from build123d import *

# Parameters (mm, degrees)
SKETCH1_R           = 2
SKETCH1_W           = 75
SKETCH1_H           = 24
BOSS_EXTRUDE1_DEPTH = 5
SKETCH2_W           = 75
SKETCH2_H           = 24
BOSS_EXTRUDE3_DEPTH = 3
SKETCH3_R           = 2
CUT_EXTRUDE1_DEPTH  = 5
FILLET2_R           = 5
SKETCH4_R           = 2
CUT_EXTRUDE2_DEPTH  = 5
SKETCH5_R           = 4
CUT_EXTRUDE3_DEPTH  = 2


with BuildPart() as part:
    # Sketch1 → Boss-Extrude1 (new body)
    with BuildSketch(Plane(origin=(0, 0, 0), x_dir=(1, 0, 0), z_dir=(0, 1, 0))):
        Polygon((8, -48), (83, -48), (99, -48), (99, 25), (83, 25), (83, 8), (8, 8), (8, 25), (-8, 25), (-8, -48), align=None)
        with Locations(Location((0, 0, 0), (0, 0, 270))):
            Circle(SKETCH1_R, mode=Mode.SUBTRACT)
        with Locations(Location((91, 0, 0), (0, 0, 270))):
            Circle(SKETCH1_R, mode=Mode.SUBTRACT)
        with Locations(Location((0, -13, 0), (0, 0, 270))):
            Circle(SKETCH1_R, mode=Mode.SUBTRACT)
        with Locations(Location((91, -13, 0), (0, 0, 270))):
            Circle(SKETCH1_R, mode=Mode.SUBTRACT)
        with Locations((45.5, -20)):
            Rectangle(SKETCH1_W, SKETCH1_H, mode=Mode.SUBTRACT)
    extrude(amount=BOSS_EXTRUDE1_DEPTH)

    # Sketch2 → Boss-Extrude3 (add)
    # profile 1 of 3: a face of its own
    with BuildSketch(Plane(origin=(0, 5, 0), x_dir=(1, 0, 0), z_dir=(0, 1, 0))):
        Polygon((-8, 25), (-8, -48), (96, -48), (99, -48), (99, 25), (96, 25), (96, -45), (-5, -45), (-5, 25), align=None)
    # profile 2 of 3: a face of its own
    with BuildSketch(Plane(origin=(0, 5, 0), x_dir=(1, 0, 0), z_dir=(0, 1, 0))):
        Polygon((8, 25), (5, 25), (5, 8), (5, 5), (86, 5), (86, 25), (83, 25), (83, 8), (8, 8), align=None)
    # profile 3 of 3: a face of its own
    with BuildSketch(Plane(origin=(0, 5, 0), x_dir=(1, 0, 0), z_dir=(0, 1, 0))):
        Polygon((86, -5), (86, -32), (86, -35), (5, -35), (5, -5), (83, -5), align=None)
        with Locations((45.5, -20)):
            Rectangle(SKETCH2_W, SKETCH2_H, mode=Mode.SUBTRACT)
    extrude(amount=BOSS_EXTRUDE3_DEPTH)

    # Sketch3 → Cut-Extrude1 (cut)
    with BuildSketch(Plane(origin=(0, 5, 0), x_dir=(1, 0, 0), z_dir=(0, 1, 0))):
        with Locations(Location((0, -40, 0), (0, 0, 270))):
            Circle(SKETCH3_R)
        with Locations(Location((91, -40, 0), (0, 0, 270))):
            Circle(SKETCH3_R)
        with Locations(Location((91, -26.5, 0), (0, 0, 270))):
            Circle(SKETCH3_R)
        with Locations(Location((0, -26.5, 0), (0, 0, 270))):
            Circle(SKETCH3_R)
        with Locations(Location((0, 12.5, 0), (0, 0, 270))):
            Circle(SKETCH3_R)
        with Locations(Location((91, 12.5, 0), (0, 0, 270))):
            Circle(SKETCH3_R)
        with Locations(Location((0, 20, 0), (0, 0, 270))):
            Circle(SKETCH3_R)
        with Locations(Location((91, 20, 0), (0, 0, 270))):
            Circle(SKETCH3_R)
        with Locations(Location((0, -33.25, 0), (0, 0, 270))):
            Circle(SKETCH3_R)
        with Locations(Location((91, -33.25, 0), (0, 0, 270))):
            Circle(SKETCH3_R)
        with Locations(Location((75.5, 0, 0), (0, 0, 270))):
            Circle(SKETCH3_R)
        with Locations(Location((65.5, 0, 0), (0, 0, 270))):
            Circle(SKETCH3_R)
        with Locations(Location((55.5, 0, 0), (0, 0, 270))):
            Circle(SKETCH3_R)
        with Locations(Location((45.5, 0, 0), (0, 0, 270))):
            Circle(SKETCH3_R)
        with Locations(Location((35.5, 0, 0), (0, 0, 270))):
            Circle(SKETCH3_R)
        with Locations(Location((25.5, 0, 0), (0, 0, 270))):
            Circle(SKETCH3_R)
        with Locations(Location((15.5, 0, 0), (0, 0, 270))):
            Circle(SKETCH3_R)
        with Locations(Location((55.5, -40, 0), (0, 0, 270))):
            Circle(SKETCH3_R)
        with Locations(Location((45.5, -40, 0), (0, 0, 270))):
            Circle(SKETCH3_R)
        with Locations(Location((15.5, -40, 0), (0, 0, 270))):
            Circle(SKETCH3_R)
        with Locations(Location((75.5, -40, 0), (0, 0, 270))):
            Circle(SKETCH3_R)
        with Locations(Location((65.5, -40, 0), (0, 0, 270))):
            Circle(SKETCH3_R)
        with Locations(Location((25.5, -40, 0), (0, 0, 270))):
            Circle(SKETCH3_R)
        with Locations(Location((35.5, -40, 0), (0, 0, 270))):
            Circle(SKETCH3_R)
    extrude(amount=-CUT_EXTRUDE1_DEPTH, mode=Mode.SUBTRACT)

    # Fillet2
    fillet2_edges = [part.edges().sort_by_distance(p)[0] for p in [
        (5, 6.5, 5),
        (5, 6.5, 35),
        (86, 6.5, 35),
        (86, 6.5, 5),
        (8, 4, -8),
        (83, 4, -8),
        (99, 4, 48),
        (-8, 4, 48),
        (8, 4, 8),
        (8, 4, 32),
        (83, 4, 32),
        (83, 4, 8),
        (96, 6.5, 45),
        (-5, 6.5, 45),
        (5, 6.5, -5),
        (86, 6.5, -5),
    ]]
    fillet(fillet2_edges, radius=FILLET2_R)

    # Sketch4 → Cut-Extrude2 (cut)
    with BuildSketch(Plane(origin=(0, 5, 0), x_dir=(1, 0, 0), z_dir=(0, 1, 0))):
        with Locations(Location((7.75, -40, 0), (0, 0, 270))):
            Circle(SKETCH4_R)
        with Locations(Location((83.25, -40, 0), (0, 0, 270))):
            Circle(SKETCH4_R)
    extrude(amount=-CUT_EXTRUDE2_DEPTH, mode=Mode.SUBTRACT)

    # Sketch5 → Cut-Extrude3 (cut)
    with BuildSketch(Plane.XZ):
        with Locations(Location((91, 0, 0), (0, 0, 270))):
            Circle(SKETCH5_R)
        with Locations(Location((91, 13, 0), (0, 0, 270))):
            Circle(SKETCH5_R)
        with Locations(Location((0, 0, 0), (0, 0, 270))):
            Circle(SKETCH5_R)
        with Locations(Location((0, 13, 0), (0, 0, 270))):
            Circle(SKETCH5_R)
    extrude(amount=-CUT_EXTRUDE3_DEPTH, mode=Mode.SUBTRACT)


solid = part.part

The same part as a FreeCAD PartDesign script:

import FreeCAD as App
import Part
import Sketcher
Q = App.Units.Quantity


def edges_at(feature, points):
    """Names of the edges that pass closest to the given points."""
    edges = feature.Shape.Edges
    near = lambda p: min(range(len(edges)), key=lambda i: edges[i].distToShape(Part.Vertex(*p))[0])
    return sorted({f"Edge{near(p) + 1}" for p in points})


def add_polygon(sketch, points):
    """Adds a closed chain of lines whose ends are joined by coincident constraints."""
    first, n = sketch.GeometryCount, len(points)
    for a, b in zip(points, points[1:] + points[:1]):
        sketch.addGeometry(Part.LineSegment(App.Vector(*a, 0), App.Vector(*b, 0)), False)
    for i in range(n):
        sketch.addConstraint(Sketcher.Constraint("Coincident", first + i, 2, first + (i + 1) % n, 1))

doc = App.newDocument("Part")
params = doc.addObject("Spreadsheet::Sheet", "Params")
for row, (alias, value) in enumerate([
    ("sketch1_diameter", "4 mm"),
    ("sketch1_width", "16 mm"),
    ("sketch1_width2", "75 mm"),
    ("sketch1_height", "73 mm"),
    ("sketch1_height2", "17 mm"),
    ("pad1_length", "5 mm"),
    ("sketch2_width", "107 mm"),
    ("sketch2_width2", "3 mm"),
    ("sketch2_width3", "81 mm"),
    ("sketch2_height", "73 mm"),
    ("sketch2_height2", "70 mm"),
    ("pad2_length", "3 mm"),
    ("sketch3_diameter", "4 mm"),
    ("pocket1_length", "5 mm"),
    ("fillet_radius", "5 mm"),
    ("sketch4_diameter", "4 mm"),
    ("pocket2_length", "5 mm"),
    ("sketch5_diameter", "8 mm"),
    ("pocket3_length", "2 mm"),
], start=1):
    params.set(f"A{row}", alias)
    params.set(f"B{row}", "=" + value)
    params.setAlias(f"B{row}", alias)

body = doc.addObject("PartDesign::Body", "Body")

sketch1 = body.newObject("Sketcher::SketchObject", "Sketch")
sketch1.AttachmentSupport = (doc.getObject("XZ_Plane"), [""])
sketch1.MapMode = "FlatFace"
add_polygon(sketch1, [(99, 48), (99, -25), (83, -25), (83, -8), (8, -8), (8, -25), (-8, -25), (-8, 48)])
add_polygon(sketch1, [(83, 32), (8, 32), (8, 8), (83, 8)])
sketch1.addGeometry(Part.Circle(App.Vector(0, 13, 0), App.Vector(0, 0, 1), 2), False)
sketch1.addGeometry(Part.Circle(App.Vector(0, 0, 0), App.Vector(0, 0, 1), 2), False)
sketch1.addGeometry(Part.Circle(App.Vector(91, 13, 0), App.Vector(0, 0, 1), 2), False)
sketch1.addGeometry(Part.Circle(App.Vector(91, 0, 0), App.Vector(0, 0, 1), 2), False)
sketch1.addConstraint([
    Sketcher.Constraint("Vertical", 0),
    Sketcher.Constraint("Horizontal", 1),
    Sketcher.Constraint("Vertical", 2),
    Sketcher.Constraint("Horizontal", 3),
    Sketcher.Constraint("Vertical", 4),
    Sketcher.Constraint("Horizontal", 5),
    Sketcher.Constraint("Vertical", 6),
    Sketcher.Constraint("Horizontal", 7),
    Sketcher.Constraint("Horizontal", 8),
    Sketcher.Constraint("Vertical", 9),
    Sketcher.Constraint("Horizontal", 10),
    Sketcher.Constraint("Vertical", 11),
    Sketcher.Constraint("Coincident", 13, 3, -1, 1),
    Sketcher.Constraint("Equal", 12, 13),
    Sketcher.Constraint("Equal", 13, 14),
    Sketcher.Constraint("Equal", 14, 15),
    Sketcher.Constraint("Symmetric", 3, 2, 9, 2, -1),
    Sketcher.Constraint("PointOnObject", 12, 3, -2),
    Sketcher.Constraint("PointOnObject", 15, 3, -1),
    Sketcher.Constraint("Horizontal", 12, 3, 14, 3),
    Sketcher.Constraint("Horizontal", 1, 2, 4, 2),
    Sketcher.Constraint("Vertical", 14, 3, 15, 3),
    Sketcher.Constraint("Vertical", 2, 2, 10, 2),
    Sketcher.Constraint("Equal", 1, 5),
    Sketcher.Constraint("Diameter", 12, Q("4 mm")),
    Sketcher.Constraint("DistanceX", 1, 2, 1, 1, Q("16 mm")),
    Sketcher.Constraint("DistanceX", 3, 2, 3, 1, Q("75 mm")),
    Sketcher.Constraint("DistanceY", 0, 2, 0, 1, Q("73 mm")),
    Sketcher.Constraint("DistanceY", 2, 1, 2, 2, Q("17 mm")),
    Sketcher.Constraint("DistanceY", 9, 2, 9, 1, Q("24 mm")),
    Sketcher.Constraint("DistanceY", -1, 1, 12, 3, Q("13 mm")),
    Sketcher.Constraint("DistanceX", -1, 1, 14, 3, Q("91 mm")),
    Sketcher.Constraint("DistanceX", -1, 1, 0, 2, Q("99 mm")),
    Sketcher.Constraint("DistanceY", 0, 2, -1, 1, Q("25 mm")),
])
sketch1.setExpression("Constraints[36]", "Params.sketch1_diameter")
sketch1.setExpression("Constraints[37]", "Params.sketch1_width")
sketch1.setExpression("Constraints[38]", "Params.sketch1_width2")
sketch1.setExpression("Constraints[39]", "Params.sketch1_height")
sketch1.setExpression("Constraints[40]", "Params.sketch1_height2")
pad1 = body.newObject("PartDesign::Pad", "Pad")
pad1.Profile = sketch1
pad1.setExpression("Length", "Params.pad1_length")
pad1.Reversed = True

sketch2 = body.newObject("Sketcher::SketchObject", "Sketch001")
sketch2.AttachmentSupport = (doc.getObject("XZ_Plane"), [""])
sketch2.MapMode = "FlatFace"
sketch2.AttachmentOffset = App.Placement(App.Vector(0, 0, -5), App.Rotation())
add_polygon(sketch2, [(-8, -25), (-8, 48), (99, 48), (99, -25), (96, -25), (96, 45), (-5, 45), (-5, -25)])
add_polygon(sketch2, [(8, -25), (5, -25), (5, -5), (86, -5), (86, -25), (83, -25), (83, -8), (8, -8)])
add_polygon(sketch2, [(86, 35), (86, 5), (5, 5), (5, 35)])
add_polygon(sketch2, [(8, 32), (8, 8), (83, 8), (83, 32)])
sketch2.addConstraint([
    Sketcher.Constraint("Vertical", 0),
    Sketcher.Constraint("Horizontal", 1),
    Sketcher.Constraint("Vertical", 2),
    Sketcher.Constraint("Horizontal", 3),
    Sketcher.Constraint("Vertical", 4),
    Sketcher.Constraint("Horizontal", 5),
    Sketcher.Constraint("Vertical", 6),
    Sketcher.Constraint("Horizontal", 7),
    Sketcher.Constraint("Horizontal", 8),
    Sketcher.Constraint("Vertical", 9),
    Sketcher.Constraint("Horizontal", 10),
    Sketcher.Constraint("Vertical", 11),
    Sketcher.Constraint("Horizontal", 12),
    Sketcher.Constraint("Vertical", 13),
    Sketcher.Constraint("Horizontal", 14),
    Sketcher.Constraint("Vertical", 15),
    Sketcher.Constraint("Vertical", 16),
    Sketcher.Constraint("Horizontal", 17),
    Sketcher.Constraint("Vertical", 18),
    Sketcher.Constraint("Horizontal", 19),
    Sketcher.Constraint("Vertical", 20),
    Sketcher.Constraint("Horizontal", 21),
    Sketcher.Constraint("Vertical", 22),
    Sketcher.Constraint("Horizontal", 23),
    Sketcher.Constraint("Symmetric", 6, 2, 8, 2, -2),
    Sketcher.Constraint("Symmetric", 10, 2, 16, 2, -1),
    Sketcher.Constraint("Symmetric", 14, 2, 20, 2, -1),
    Sketcher.Constraint("Horizontal", 3, 2, 6, 2),
    Sketcher.Constraint("Horizontal", 8, 2, 11, 2),
    Sketcher.Constraint("Vertical", 9, 2, 17, 2),
    Sketcher.Constraint("Vertical", 13, 2, 21, 2),
    Sketcher.Constraint("Equal", 3, 7),
    Sketcher.Constraint("Equal", 7, 8),
    Sketcher.Constraint("Equal", 8, 12),
    Sketcher.Constraint("DistanceX", 1, 1, 1, 2, Q("107 mm")),
    Sketcher.Constraint("DistanceX", 3, 2, 3, 1, Q("3 mm")),
    Sketcher.Constraint("DistanceX", 10, 1, 10, 2, Q("81 mm")),
    Sketcher.Constraint("DistanceY", 0, 1, 0, 2, Q("73 mm")),
    Sketcher.Constraint("DistanceY", 4, 1, 4, 2, Q("70 mm")),
    Sketcher.Constraint("DistanceY", 9, 1, 9, 2, Q("20 mm")),
    Sketcher.Constraint("DistanceY", 13, 1, 13, 2, Q("17 mm")),
    Sketcher.Constraint("DistanceY", 16, 2, 16, 1, Q("30 mm")),
    Sketcher.Constraint("DistanceY", 20, 2, 20, 1, Q("24 mm")),
    Sketcher.Constraint("DistanceX", 0, 2, -1, 1, Q("8 mm")),
    Sketcher.Constraint("DistanceY", -1, 1, 0, 2, Q("48 mm")),
])
sketch2.setExpression("Constraints[58]", "Params.sketch2_width")
sketch2.setExpression("Constraints[59]", "Params.sketch2_width2")
sketch2.setExpression("Constraints[60]", "Params.sketch2_width3")
sketch2.setExpression("Constraints[61]", "Params.sketch2_height")
sketch2.setExpression("Constraints[62]", "Params.sketch2_height2")
pad2 = body.newObject("PartDesign::Pad", "Pad001")
pad2.Profile = sketch2
pad2.setExpression("Length", "Params.pad2_length")
pad2.Reversed = True

sketch3 = body.newObject("Sketcher::SketchObject", "Sketch002")
sketch3.AttachmentSupport = (doc.getObject("XZ_Plane"), [""])
sketch3.MapMode = "FlatFace"
sketch3.AttachmentOffset = App.Placement(App.Vector(0, 0, -5), App.Rotation())
sketch3.addGeometry([
    Part.Circle(App.Vector(0, 40, 0), App.Vector(0, 0, 1), 2),
    Part.Circle(App.Vector(91, 40, 0), App.Vector(0, 0, 1), 2),
    Part.Circle(App.Vector(91, 26.5, 0), App.Vector(0, 0, 1), 2),
    Part.Circle(App.Vector(0, 26.5, 0), App.Vector(0, 0, 1), 2),
    Part.Circle(App.Vector(0, -12.5, 0), App.Vector(0, 0, 1), 2),
    Part.Circle(App.Vector(91, -12.5, 0), App.Vector(0, 0, 1), 2),
    Part.Circle(App.Vector(0, -20, 0), App.Vector(0, 0, 1), 2),
    Part.Circle(App.Vector(91, -20, 0), App.Vector(0, 0, 1), 2),
    Part.Circle(App.Vector(0, 33.25, 0), App.Vector(0, 0, 1), 2),
    Part.Circle(App.Vector(91, 33.25, 0), App.Vector(0, 0, 1), 2),
    Part.Circle(App.Vector(75.5, 0, 0), App.Vector(0, 0, 1), 2),
    Part.Circle(App.Vector(65.5, 0, 0), App.Vector(0, 0, 1), 2),
    Part.Circle(App.Vector(55.5, 0, 0), App.Vector(0, 0, 1), 2),
    Part.Circle(App.Vector(45.5, 0, 0), App.Vector(0, 0, 1), 2),
    Part.Circle(App.Vector(35.5, 0, 0), App.Vector(0, 0, 1), 2),
    Part.Circle(App.Vector(25.5, 0, 0), App.Vector(0, 0, 1), 2),
    Part.Circle(App.Vector(15.5, 0, 0), App.Vector(0, 0, 1), 2),
    Part.Circle(App.Vector(55.5, 40, 0), App.Vector(0, 0, 1), 2),
    Part.Circle(App.Vector(45.5, 40, 0), App.Vector(0, 0, 1), 2),
    Part.Circle(App.Vector(15.5, 40, 0), App.Vector(0, 0, 1), 2),
    Part.Circle(App.Vector(75.5, 40, 0), App.Vector(0, 0, 1), 2),
    Part.Circle(App.Vector(65.5, 40, 0), App.Vector(0, 0, 1), 2),
    Part.Circle(App.Vector(25.5, 40, 0), App.Vector(0, 0, 1), 2),
    Part.Circle(App.Vector(35.5, 40, 0), App.Vector(0, 0, 1), 2),
], False)
sketch3.addConstraint([
    Sketcher.Constraint("Equal", 0, 1),
    Sketcher.Constraint("Equal", 1, 2),
    Sketcher.Constraint("Equal", 2, 3),
    Sketcher.Constraint("Equal", 3, 4),
    Sketcher.Constraint("Equal", 4, 5),
    Sketcher.Constraint("Equal", 5, 6),
    Sketcher.Constraint("Equal", 6, 7),
    Sketcher.Constraint("Equal", 7, 8),
    Sketcher.Constraint("Equal", 8, 9),
    Sketcher.Constraint("Equal", 9, 10),
    Sketcher.Constraint("Equal", 10, 11),
    Sketcher.Constraint("Equal", 11, 12),
    Sketcher.Constraint("Equal", 12, 13),
    Sketcher.Constraint("Equal", 13, 14),
    Sketcher.Constraint("Equal", 14, 15),
    Sketcher.Constraint("Equal", 15, 16),
    Sketcher.Constraint("Equal", 16, 17),
    Sketcher.Constraint("Equal", 17, 18),
    Sketcher.Constraint("Equal", 18, 19),
    Sketcher.Constraint("Equal", 19, 20),
    Sketcher.Constraint("Equal", 20, 21),
    Sketcher.Constraint("Equal", 21, 22),
    Sketcher.Constraint("Equal", 22, 23),
    Sketcher.Constraint("PointOnObject", 0, 3, -2),
    Sketcher.Constraint("PointOnObject", 3, 3, -2),
    Sketcher.Constraint("PointOnObject", 4, 3, -2),
    Sketcher.Constraint("PointOnObject", 6, 3, -2),
    Sketcher.Constraint("PointOnObject", 8, 3, -2),
    Sketcher.Constraint("PointOnObject", 10, 3, -1),
    Sketcher.Constraint("PointOnObject", 11, 3, -1),
    Sketcher.Constraint("PointOnObject", 12, 3, -1),
    Sketcher.Constraint("PointOnObject", 13, 3, -1),
    Sketcher.Constraint("PointOnObject", 14, 3, -1),
    Sketcher.Constraint("PointOnObject", 15, 3, -1),
    Sketcher.Constraint("PointOnObject", 16, 3, -1),
    Sketcher.Constraint("Horizontal", 0, 3, 1, 3),
    Sketcher.Constraint("Horizontal", 2, 3, 3, 3),
    Sketcher.Constraint("Horizontal", 4, 3, 5, 3),
    Sketcher.Constraint("Horizontal", 6, 3, 7, 3),
    Sketcher.Constraint("Horizontal", 8, 3, 9, 3),
    Sketcher.Constraint("Horizontal", 1, 3, 17, 3),
    Sketcher.Constraint("Horizontal", 17, 3, 18, 3),
    Sketcher.Constraint("Horizontal", 18, 3, 19, 3),
    Sketcher.Constraint("Horizontal", 19, 3, 20, 3),
    Sketcher.Constraint("Horizontal", 20, 3, 21, 3),
    Sketcher.Constraint("Horizontal", 21, 3, 22, 3),
    Sketcher.Constraint("Horizontal", 22, 3, 23, 3),
    Sketcher.Constraint("Vertical", 1, 3, 2, 3),
    Sketcher.Constraint("Vertical", 2, 3, 5, 3),
    Sketcher.Constraint("Vertical", 5, 3, 7, 3),
    Sketcher.Constraint("Vertical", 7, 3, 9, 3),
    Sketcher.Constraint("Vertical", 12, 3, 17, 3),
    Sketcher.Constraint("Vertical", 13, 3, 18, 3),
    Sketcher.Constraint("Vertical", 16, 3, 19, 3),
    Sketcher.Constraint("Vertical", 10, 3, 20, 3),
    Sketcher.Constraint("Vertical", 11, 3, 21, 3),
    Sketcher.Constraint("Vertical", 15, 3, 22, 3),
    Sketcher.Constraint("Vertical", 14, 3, 23, 3),
    Sketcher.Constraint("Diameter", 0, Q("4 mm")),
    Sketcher.Constraint("DistanceY", -1, 1, 0, 3, Q("40 mm")),
    Sketcher.Constraint("DistanceX", -1, 1, 1, 3, Q("91 mm")),
    Sketcher.Constraint("DistanceY", 6, 3, -1, 1, Q("20 mm")),
    Sketcher.Constraint("DistanceY", 4, 3, 3, 3, Q("39 mm")),
    Sketcher.Constraint("DistanceX", 11, 3, 10, 3, Q("10 mm")),
    Sketcher.Constraint("DistanceX", 12, 3, 11, 3, Q("10 mm")),
    Sketcher.Constraint("DistanceX", 13, 3, 12, 3, Q("10 mm")),
    Sketcher.Constraint("DistanceX", 14, 3, 13, 3, Q("10 mm")),
    Sketcher.Constraint("DistanceX", 15, 3, 14, 3, Q("10 mm")),
    Sketcher.Constraint("DistanceX", 16, 3, 15, 3, Q("10 mm")),
    Sketcher.Constraint("DistanceY", -1, 1, 2, 3, Q("26.5 mm")),
    Sketcher.Constraint("DistanceX", -1, 1, 10, 3, Q("75.5 mm")),
    Sketcher.Constraint("DistanceY", -1, 1, 8, 3, Q("33.25 mm")),
])
sketch3.setExpression("Constraints[58]", "Params.sketch3_diameter")
pocket1 = body.newObject("PartDesign::Pocket", "Pocket")
pocket1.Profile = sketch3
pocket1.setExpression("Length", "Params.pocket1_length")
pocket1.Reversed = True
doc.recompute()

fillet = body.newObject("PartDesign::Fillet", "Fillet")
fillet.Base = (pocket1, edges_at(pocket1, [
    (5, 6.5, 5),
    (5, 6.5, 35),
    (86, 6.5, 35),
    (86, 6.5, 5),
    (8, 4, -8),
    (83, 4, -8),
    (99, 4, 48),
    (-8, 4, 48),
    (8, 4, 8),
    (8, 4, 32),
    (83, 4, 32),
    (83, 4, 8),
    (96, 6.5, 45),
    (-5, 6.5, 45),
    (5, 6.5, -5),
    (86, 6.5, -5),
]))
fillet.setExpression("Radius", "Params.fillet_radius")

sketch4 = body.newObject("Sketcher::SketchObject", "Sketch003")
sketch4.AttachmentSupport = (doc.getObject("XZ_Plane"), [""])
sketch4.MapMode = "FlatFace"
sketch4.AttachmentOffset = App.Placement(App.Vector(0, 0, -5), App.Rotation())
sketch4.addGeometry([
    Part.Circle(App.Vector(7.75, 40, 0), App.Vector(0, 0, 1), 2),
    Part.Circle(App.Vector(83.25, 40, 0), App.Vector(0, 0, 1), 2),
], False)
sketch4.addConstraint([
    Sketcher.Constraint("Equal", 0, 1),
    Sketcher.Constraint("Horizontal", 0, 3, 1, 3),
    Sketcher.Constraint("Diameter", 0, Q("4 mm")),
    Sketcher.Constraint("DistanceY", -1, 1, 0, 3, Q("40 mm")),
    Sketcher.Constraint("DistanceX", 0, 3, 1, 3, Q("75.5 mm")),
    Sketcher.Constraint("DistanceX", -1, 1, 0, 3, Q("7.75 mm")),
])
sketch4.setExpression("Constraints[2]", "Params.sketch4_diameter")
pocket2 = body.newObject("PartDesign::Pocket", "Pocket001")
pocket2.Profile = sketch4
pocket2.setExpression("Length", "Params.pocket2_length")
pocket2.Reversed = True

sketch5 = body.newObject("Sketcher::SketchObject", "Sketch004")
sketch5.AttachmentSupport = (doc.getObject("XZ_Plane"), [""])
sketch5.MapMode = "FlatFace"
sketch5.addGeometry([
    Part.Circle(App.Vector(91, 0, 0), App.Vector(0, 0, 1), 4),
    Part.Circle(App.Vector(91, 13, 0), App.Vector(0, 0, 1), 4),
    Part.Circle(App.Vector(0, 0, 0), App.Vector(0, 0, 1), 4),
    Part.Circle(App.Vector(0, 13, 0), App.Vector(0, 0, 1), 4),
], False)
sketch5.addConstraint([
    Sketcher.Constraint("Coincident", 2, 3, -1, 1),
    Sketcher.Constraint("Equal", 0, 1),
    Sketcher.Constraint("Equal", 1, 2),
    Sketcher.Constraint("Equal", 2, 3),
    Sketcher.Constraint("PointOnObject", 0, 3, -1),
    Sketcher.Constraint("PointOnObject", 3, 3, -2),
    Sketcher.Constraint("Horizontal", 1, 3, 3, 3),
    Sketcher.Constraint("Vertical", 0, 3, 1, 3),
    Sketcher.Constraint("Diameter", 0, Q("8 mm")),
    Sketcher.Constraint("DistanceX", -1, 1, 0, 3, Q("91 mm")),
    Sketcher.Constraint("DistanceY", -1, 1, 1, 3, Q("13 mm")),
])
sketch5.setExpression("Constraints[8]", "Params.sketch5_diameter")
pocket3 = body.newObject("PartDesign::Pocket", "Pocket002")
pocket3.Profile = sketch5
pocket3.setExpression("Length", "Params.pocket3_length")

doc.recompute()
